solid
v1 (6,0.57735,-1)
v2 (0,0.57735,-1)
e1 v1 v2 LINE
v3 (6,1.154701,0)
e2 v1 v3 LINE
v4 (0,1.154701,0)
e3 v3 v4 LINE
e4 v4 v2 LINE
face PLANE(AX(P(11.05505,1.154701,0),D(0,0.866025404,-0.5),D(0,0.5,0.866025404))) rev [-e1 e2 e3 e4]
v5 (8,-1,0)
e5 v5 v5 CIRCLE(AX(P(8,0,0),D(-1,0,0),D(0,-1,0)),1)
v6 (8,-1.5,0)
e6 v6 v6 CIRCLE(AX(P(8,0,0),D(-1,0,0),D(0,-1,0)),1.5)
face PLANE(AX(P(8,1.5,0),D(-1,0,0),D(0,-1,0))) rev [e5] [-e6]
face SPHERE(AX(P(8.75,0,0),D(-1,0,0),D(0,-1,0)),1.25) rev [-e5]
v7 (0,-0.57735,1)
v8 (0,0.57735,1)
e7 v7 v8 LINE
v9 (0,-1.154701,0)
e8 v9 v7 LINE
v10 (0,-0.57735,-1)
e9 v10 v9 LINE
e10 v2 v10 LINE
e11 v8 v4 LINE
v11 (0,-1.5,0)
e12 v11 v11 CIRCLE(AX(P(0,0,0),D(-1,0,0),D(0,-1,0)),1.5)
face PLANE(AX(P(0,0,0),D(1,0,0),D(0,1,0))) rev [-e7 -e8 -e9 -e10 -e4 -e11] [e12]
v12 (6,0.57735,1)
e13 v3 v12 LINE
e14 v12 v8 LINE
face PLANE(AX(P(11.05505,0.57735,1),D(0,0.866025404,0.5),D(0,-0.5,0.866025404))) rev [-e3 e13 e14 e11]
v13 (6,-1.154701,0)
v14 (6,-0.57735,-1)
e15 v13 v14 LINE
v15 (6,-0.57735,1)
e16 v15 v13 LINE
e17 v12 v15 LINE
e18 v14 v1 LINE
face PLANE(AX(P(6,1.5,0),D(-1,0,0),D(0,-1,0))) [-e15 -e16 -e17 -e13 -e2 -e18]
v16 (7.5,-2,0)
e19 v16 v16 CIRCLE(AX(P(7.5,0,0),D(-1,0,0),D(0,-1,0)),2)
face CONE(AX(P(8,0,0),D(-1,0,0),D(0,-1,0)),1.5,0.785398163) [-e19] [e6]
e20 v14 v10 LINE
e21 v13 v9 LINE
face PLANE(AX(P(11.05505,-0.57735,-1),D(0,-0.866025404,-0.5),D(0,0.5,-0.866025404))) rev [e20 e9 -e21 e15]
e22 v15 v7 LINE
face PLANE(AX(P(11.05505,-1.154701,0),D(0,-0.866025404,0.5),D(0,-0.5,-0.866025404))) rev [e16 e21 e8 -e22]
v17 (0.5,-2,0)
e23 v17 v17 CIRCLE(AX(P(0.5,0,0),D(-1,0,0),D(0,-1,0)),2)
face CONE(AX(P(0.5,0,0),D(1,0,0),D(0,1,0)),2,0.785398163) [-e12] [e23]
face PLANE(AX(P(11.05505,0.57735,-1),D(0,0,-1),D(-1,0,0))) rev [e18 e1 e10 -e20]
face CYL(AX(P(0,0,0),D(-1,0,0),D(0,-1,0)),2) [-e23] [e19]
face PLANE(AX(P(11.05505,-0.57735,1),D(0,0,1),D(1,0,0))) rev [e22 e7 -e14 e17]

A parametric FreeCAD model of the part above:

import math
import FreeCAD as App
import Part
import Sketcher
from FreeCAD import Vector
Q = App.Units.Quantity

doc = App.newDocument("Part")
body = doc.addObject("PartDesign::Body", "Body")

sketch1 = body.newObject("Sketcher::SketchObject", "Sketch")
sketch1.AttachmentSupport = (doc.getObject("XY_Plane"), [""])
sketch1.MapMode = "FlatFace"
sketch1.addGeometry([
    Part.LineSegment(Vector(0, 1.5, 0), Vector(0, 0, 0)),
    Part.LineSegment(Vector(0, 0, 0), Vector(7.5, 0, 0)),
    Part.ArcOfCircle(Part.Circle(Vector(8.75, 0, 0), Vector(0, 0, 1), 1.25), math.radians(126.869898), math.radians(180)),
    Part.LineSegment(Vector(8, 1, 0), Vector(8, 1.5, 0)),
    Part.LineSegment(Vector(8, 1.5, 0), Vector(7.5, 2, 0)),
    Part.LineSegment(Vector(7.5, 2, 0), Vector(0.5, 2, 0)),
    Part.LineSegment(Vector(0.5, 2, 0), Vector(0, 1.5, 0)),
], False)
sketch1.addConstraint([
    Sketcher.Constraint("Coincident", 0, 2, 1, 1),
    Sketcher.Constraint("Coincident", 1, 2, 2, 2),
    Sketcher.Constraint("Coincident", 2, 1, 3, 1),
    Sketcher.Constraint("Coincident", 3, 2, 4, 1),
    Sketcher.Constraint("Coincident", 4, 2, 5, 1),
    Sketcher.Constraint("Coincident", 5, 2, 6, 1),
    Sketcher.Constraint("Coincident", 6, 2, 0, 1),
    Sketcher.Constraint("Vertical", 0),
    Sketcher.Constraint("Horizontal", 1),
    Sketcher.Constraint("Vertical", 3),
    Sketcher.Constraint("Horizontal", 5),
    Sketcher.Constraint("Coincident", 0, 2, -1, 1),
    Sketcher.Constraint("PointOnObject", 2, 3, -1),
    Sketcher.Constraint("Perpendicular", 4, 6),
    Sketcher.Constraint("Horizontal", 3, 2, 6, 2),
    Sketcher.Constraint("Vertical", 1, 2, 4, 2),
    Sketcher.Constraint("Equal", 4, 6),
    Sketcher.Constraint("DistanceX", 5, 2, 5, 1, 7.0),
    Sketcher.Constraint("Radius", 2, 1.25),
    Sketcher.Constraint("DistanceX", 1, 1, 1, 2, 7.5),
    Sketcher.Constraint("DistanceY", 0, 2, 0, 1, 1.5),
])
revolution = body.newObject("PartDesign::Revolution", "Revolution")
revolution.Profile = sketch1
revolution.ReferenceAxis = (sketch1, ["H_Axis"])
revolution.Angle = 360

sketch2 = body.newObject("Sketcher::SketchObject", "Sketch001")
sketch2.AttachmentSupport = (doc.getObject("YZ_Plane"), [""])
sketch2.MapMode = "FlatFace"
sketch2.addGeometry([
    Part.LineSegment(Vector(1.154701, 0, 0), Vector(0.57735, -1, 0)),
    Part.LineSegment(Vector(0.57735, -1, 0), Vector(-0.57735, -1, 0)),
    Part.LineSegment(Vector(-0.57735, -1, 0), Vector(-1.154701, 0, 0)),
    Part.LineSegment(Vector(-1.154701, 0, 0), Vector(-0.57735, 1, 0)),
    Part.LineSegment(Vector(-0.57735, 1, 0), Vector(0.57735, 1, 0)),
    Part.LineSegment(Vector(0.57735, 1, 0), Vector(1.154701, 0, 0)),
], False)
sketch2.addConstraint([
    Sketcher.Constraint("Coincident", 0, 2, 1, 1),
    Sketcher.Constraint("Coincident", 1, 2, 2, 1),
    Sketcher.Constraint("Coincident", 2, 2, 3, 1),
    Sketcher.Constraint("Coincident", 3, 2, 4, 1),
    Sketcher.Constraint("Coincident", 4, 2, 5, 1),
    Sketcher.Constraint("Coincident", 5, 2, 0, 1),
    Sketcher.Constraint("Horizontal", 1),
    Sketcher.Constraint("Horizontal", 4),
    Sketcher.Constraint("Symmetric", 0, 2, 3, 2, -1, 1),
    Sketcher.Constraint("Symmetric", 2, 2, 5, 2, -1, 1),
    Sketcher.Constraint("PointOnObject", 2, 2, -1),
    Sketcher.Constraint("Parallel", 2, 5),
    Sketcher.Constraint("Vertical", 1, 2, 3, 2),
    Sketcher.Constraint("Angle", 0, Q("-120 deg")),
    Sketcher.Constraint("DistanceY", 0, 2, -1, 1, 1.0),
    Sketcher.Constraint("DistanceX", 1, 2, 1, 1, 1.154701),
])
pocket1 = body.newObject("PartDesign::Pocket", "Pocket")
pocket1.Profile = sketch2
pocket1.Length = 6
pocket1.Reversed = True

doc.recompute()
